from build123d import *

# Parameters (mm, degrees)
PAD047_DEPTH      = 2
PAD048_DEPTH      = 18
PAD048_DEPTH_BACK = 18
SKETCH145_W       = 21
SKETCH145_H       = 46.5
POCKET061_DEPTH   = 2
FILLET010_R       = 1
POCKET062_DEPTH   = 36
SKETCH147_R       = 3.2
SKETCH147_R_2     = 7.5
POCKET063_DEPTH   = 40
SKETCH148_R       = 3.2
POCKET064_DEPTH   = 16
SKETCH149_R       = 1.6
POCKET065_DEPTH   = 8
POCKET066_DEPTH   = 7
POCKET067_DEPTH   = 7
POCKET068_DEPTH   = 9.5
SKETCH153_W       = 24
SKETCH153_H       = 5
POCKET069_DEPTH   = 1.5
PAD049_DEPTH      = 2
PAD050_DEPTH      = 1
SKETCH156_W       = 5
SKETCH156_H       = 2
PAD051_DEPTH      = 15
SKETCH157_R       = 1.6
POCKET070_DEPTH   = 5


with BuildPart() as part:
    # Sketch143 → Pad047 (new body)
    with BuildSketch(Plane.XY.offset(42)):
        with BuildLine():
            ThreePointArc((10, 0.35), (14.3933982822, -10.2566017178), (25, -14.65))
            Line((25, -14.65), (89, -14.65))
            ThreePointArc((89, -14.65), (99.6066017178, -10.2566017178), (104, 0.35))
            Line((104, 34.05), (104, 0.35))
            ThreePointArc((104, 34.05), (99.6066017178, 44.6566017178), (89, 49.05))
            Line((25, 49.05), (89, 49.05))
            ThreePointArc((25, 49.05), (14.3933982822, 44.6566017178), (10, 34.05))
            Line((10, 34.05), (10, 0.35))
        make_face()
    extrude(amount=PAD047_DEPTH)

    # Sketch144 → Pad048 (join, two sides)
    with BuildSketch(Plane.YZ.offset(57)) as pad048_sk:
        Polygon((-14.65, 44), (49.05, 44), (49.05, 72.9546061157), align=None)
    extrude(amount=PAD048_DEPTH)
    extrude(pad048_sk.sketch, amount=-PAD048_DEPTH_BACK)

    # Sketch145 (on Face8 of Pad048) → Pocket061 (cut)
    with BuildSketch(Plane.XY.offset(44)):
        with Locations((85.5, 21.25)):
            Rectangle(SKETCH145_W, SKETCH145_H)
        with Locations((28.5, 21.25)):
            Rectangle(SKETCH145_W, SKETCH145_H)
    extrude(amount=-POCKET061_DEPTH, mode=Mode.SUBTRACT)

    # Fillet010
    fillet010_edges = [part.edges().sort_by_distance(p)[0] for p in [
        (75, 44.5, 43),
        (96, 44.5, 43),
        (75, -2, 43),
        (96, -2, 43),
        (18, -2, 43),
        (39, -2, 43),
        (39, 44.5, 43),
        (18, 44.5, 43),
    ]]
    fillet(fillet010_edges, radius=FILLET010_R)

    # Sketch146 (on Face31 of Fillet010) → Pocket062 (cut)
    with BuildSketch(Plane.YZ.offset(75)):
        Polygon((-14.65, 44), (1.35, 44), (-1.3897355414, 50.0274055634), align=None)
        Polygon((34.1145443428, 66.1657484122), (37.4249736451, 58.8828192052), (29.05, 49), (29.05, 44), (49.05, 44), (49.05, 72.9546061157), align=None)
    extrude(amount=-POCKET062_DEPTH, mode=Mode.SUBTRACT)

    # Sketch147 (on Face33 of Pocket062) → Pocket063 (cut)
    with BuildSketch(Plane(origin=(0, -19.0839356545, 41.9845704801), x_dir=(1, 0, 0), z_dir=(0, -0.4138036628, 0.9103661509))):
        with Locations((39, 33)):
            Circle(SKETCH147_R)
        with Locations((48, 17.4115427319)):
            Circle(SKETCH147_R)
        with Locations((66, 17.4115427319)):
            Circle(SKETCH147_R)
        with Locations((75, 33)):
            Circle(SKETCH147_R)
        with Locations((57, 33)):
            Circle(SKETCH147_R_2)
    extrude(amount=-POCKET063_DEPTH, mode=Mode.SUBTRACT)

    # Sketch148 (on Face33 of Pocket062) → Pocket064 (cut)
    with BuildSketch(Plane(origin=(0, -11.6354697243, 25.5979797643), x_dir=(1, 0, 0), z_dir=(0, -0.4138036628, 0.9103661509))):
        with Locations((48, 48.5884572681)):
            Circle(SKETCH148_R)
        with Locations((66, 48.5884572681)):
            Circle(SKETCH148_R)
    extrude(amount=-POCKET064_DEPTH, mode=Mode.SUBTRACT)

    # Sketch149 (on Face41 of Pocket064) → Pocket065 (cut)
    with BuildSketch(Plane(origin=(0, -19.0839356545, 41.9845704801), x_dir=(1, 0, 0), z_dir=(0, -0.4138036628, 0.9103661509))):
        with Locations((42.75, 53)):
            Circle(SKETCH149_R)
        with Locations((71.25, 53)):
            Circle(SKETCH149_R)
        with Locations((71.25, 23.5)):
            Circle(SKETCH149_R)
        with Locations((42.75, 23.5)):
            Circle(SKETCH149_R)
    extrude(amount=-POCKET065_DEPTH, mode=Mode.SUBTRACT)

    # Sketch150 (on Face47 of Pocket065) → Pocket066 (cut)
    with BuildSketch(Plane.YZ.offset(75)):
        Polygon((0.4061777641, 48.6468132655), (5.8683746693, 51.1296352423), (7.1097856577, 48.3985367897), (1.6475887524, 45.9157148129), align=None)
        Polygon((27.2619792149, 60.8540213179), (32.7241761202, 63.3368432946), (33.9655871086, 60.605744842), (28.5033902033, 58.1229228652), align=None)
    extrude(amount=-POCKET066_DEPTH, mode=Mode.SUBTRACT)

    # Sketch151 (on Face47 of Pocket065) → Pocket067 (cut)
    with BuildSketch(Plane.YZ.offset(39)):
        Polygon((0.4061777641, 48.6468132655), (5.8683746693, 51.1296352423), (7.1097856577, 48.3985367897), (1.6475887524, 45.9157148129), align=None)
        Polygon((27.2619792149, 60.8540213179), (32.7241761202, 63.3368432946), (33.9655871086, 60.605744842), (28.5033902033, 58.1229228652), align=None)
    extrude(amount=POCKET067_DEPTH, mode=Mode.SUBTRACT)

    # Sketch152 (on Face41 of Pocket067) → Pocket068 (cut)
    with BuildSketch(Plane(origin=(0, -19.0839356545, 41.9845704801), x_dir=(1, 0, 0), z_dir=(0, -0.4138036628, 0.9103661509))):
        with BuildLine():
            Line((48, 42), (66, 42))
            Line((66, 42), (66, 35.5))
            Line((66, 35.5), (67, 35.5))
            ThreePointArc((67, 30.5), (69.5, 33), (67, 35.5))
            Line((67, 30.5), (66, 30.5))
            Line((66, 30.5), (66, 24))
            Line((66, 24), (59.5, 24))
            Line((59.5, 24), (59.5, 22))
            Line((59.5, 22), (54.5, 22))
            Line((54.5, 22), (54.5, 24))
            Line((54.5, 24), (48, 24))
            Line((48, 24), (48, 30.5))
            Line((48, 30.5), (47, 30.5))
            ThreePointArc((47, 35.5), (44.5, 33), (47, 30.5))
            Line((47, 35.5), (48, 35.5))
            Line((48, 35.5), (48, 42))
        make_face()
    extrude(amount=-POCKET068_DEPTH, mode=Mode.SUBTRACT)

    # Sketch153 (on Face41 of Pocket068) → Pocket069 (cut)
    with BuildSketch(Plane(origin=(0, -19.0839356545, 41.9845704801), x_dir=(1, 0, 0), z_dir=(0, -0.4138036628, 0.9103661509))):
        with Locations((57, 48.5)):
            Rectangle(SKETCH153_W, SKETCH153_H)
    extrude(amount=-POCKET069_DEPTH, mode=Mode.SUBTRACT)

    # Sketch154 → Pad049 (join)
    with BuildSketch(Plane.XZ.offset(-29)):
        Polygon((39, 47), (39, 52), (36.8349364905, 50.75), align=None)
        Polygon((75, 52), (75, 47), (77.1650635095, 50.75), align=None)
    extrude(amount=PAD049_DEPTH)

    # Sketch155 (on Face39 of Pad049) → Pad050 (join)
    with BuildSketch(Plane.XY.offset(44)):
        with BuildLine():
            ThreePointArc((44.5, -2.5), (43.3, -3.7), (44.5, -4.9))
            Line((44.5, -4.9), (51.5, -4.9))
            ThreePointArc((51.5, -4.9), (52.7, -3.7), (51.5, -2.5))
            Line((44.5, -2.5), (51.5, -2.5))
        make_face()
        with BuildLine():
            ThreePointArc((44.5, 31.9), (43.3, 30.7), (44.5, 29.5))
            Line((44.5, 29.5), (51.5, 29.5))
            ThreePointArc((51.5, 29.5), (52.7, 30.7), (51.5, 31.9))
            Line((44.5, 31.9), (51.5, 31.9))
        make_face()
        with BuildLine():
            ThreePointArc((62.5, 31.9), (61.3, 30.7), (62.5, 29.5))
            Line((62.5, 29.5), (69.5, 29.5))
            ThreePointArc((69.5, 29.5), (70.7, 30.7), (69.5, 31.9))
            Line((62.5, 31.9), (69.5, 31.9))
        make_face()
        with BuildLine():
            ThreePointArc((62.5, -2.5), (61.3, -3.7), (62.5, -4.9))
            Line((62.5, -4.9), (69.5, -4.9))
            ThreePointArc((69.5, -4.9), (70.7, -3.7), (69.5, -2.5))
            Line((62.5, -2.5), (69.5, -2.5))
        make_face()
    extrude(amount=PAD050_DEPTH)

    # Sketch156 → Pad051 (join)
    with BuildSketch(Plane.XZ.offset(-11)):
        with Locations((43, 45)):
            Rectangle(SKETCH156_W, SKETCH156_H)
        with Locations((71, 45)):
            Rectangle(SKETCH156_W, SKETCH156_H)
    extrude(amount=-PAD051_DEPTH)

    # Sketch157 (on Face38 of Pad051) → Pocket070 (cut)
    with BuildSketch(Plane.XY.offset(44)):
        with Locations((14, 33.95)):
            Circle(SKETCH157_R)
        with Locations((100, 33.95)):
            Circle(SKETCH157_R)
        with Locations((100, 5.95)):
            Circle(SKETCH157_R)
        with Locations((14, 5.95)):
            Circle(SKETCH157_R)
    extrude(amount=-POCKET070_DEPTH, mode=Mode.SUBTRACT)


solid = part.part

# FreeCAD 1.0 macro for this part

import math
import FreeCAD as App
import Part
import Sketcher
from FreeCAD import Vector
Q = App.Units.Quantity


def edges_at(feature, points):
    """Names of the edges that pass closest to the given points."""
    edges = feature.Shape.Edges
    near = lambda p: min(range(len(edges)), key=lambda i: edges[i].distToShape(Part.Vertex(*p))[0])
    return sorted({f"Edge{near(p) + 1}" for p in points})


def add_polygon(sketch, points):
    """Adds a closed chain of lines whose ends are joined by coincident constraints."""
    first, n = sketch.GeometryCount, len(points)
    for a, b in zip(points, points[1:] + points[:1]):
        sketch.addGeometry(Part.LineSegment(App.Vector(*a, 0), App.Vector(*b, 0)), False)
    for i in range(n):
        sketch.addConstraint(Sketcher.Constraint("Coincident", first + i, 2, first + (i + 1) % n, 1))

doc = App.newDocument("Part")
body = doc.addObject("PartDesign::Body", "Body")

# Sketch on XY plane
sketch1 = body.newObject("Sketcher::SketchObject", "Sketch")
sketch1.AttachmentSupport = (doc.getObject("XY_Plane"), [""])
sketch1.MapMode = "FlatFace"
sketch1.AttachmentOffset = App.Placement(Vector(0, 0, 42), App.Rotation())
sketch1.addGeometry([
    Part.ArcOfCircle(Part.Circle(Vector(25, 0, 0), Vector(0, 0, 1), 15), math.radians(180), math.radians(270)),  # 0
    Part.LineSegment(Vector(25, -15, 0), Vector(89, -15, 0)),  # 1
    Part.ArcOfCircle(Part.Circle(Vector(89, 0, 0), Vector(0, 0, 1), 15), math.radians(-90), math.radians(0)),  # 2
    Part.LineSegment(Vector(104, 0, 0), Vector(104, 34, 0)),  # 3
    Part.ArcOfCircle(Part.Circle(Vector(89, 34, 0), Vector(0, 0, 1), 15), math.radians(0), math.radians(90)),  # 4
    Part.LineSegment(Vector(89, 49, 0), Vector(25, 49, 0)),  # 5
    Part.ArcOfCircle(Part.Circle(Vector(25, 34, 0), Vector(0, 0, 1), 15), math.radians(90), math.radians(180)),  # 6
    Part.LineSegment(Vector(10, 34, 0), Vector(10, 0, 0)),  # 7
], False)
sketch1.addConstraint([
    Sketcher.Constraint("Tangent", 0, 2, 1, 1),
    Sketcher.Constraint("Tangent", 1, 2, 2, 1),
    Sketcher.Constraint("Tangent", 2, 2, 3, 1),
    Sketcher.Constraint("Tangent", 3, 2, 4, 1),
    Sketcher.Constraint("Tangent", 4, 2, 5, 1),
    Sketcher.Constraint("Tangent", 5, 2, 6, 1),
    Sketcher.Constraint("Tangent", 6, 2, 7, 1),
    Sketcher.Constraint("Tangent", 7, 2, 0, 1),
    Sketcher.Constraint("Horizontal", 1),
    Sketcher.Constraint("Vertical", 3),
    Sketcher.Constraint("Horizontal", 5),
    Sketcher.Constraint("Vertical", 7),
    Sketcher.Constraint("Equal", 0, 2),
    Sketcher.Constraint("Equal", 2, 4),
    Sketcher.Constraint("Equal", 4, 6),
    Sketcher.Constraint("Radius", 0, 15.0),
    Sketcher.Constraint("DistanceX", 1, 1, 1, 2, 64.0),
    Sketcher.Constraint("DistanceY", 3, 1, 3, 2, 33.7),
    Sketcher.Constraint("DistanceX", -1, 1, 0, 3, 25.0),
    Sketcher.Constraint("DistanceY", -1, 1, 0, 3, 0.35),
])
pad1 = body.newObject("PartDesign::Pad", "Pad")
pad1.Profile = sketch1
pad1.Length = 2

# Sketch on YZ plane
sketch2 = body.newObject("Sketcher::SketchObject", "Sketch001")
sketch2.AttachmentSupport = (doc.getObject("YZ_Plane"), [""])
sketch2.MapMode = "FlatFace"
sketch2.AttachmentOffset = App.Placement(Vector(0, 0, 57), App.Rotation())
add_polygon(sketch2, [(-15, 44), (49, 44), (49, 73)])  # lines 0-2
sketch2.addConstraint([
    Sketcher.Constraint("Horizontal", 0),
    Sketcher.Constraint("Vertical", 1),
    Sketcher.Constraint("DistanceX", 0, 1, 0, 2, 63.7),
    Sketcher.Constraint("DistanceY", -1, 1, 0, 2, 44.0),
    Sketcher.Constraint("DistanceX", -1, 1, 0, 2, 49.05),
    Sketcher.Constraint("DistanceY", 1, 1, 1, 2, 28.954606),
])
pad2 = body.newObject("PartDesign::Pad", "Pad001")
pad2.Profile = sketch2
pad2.Type = "TwoLengths"
pad2.Length = 18
pad2.Length2 = 18

# Sketch on XY plane
sketch3 = body.newObject("Sketcher::SketchObject", "Sketch002")
sketch3.AttachmentSupport = (doc.getObject("XY_Plane"), [""])
sketch3.MapMode = "FlatFace"
sketch3.AttachmentOffset = App.Placement(Vector(0, 0, 44), App.Rotation())
add_polygon(sketch3, [(75, 44), (75, -2), (96, -2), (96, 44)])  # lines 0-3
add_polygon(sketch3, [(18, 44), (18, -2), (39, -2), (39, 44)])  # lines 4-7
sketch3.addConstraint([
    Sketcher.Constraint("Vertical", 0),
    Sketcher.Constraint("Horizontal", 1),
    Sketcher.Constraint("Vertical", 2),
    Sketcher.Constraint("Horizontal", 3),
    Sketcher.Constraint("Vertical", 4),
    Sketcher.Constraint("Horizontal", 5),
    Sketcher.Constraint("Vertical", 6),
    Sketcher.Constraint("Horizontal", 7),
    Sketcher.Constraint("Horizontal", 1, 2, 4, 2),
    Sketcher.Constraint("Horizontal", 3, 2, 6, 2),
    Sketcher.Constraint("Equal", 3, 5),
    Sketcher.Constraint("DistanceX", 1, 1, 1, 2, 21.0),
    Sketcher.Constraint("DistanceY", 0, 2, 0, 1, 46.5),
    Sketcher.Constraint("DistanceX", -1, 1, 0, 2, 75.0),
    Sketcher.Constraint("DistanceY", 0, 2, -1, 1, 2.0),
    Sketcher.Constraint("DistanceX", -1, 1, 4, 2, 18.0),
])
pocket1 = body.newObject("PartDesign::Pocket", "Pocket")
pocket1.Profile = sketch3
pocket1.Length = 2
doc.recompute()

fillet = body.newObject("PartDesign::Fillet", "Fillet")
fillet.Base = (pocket1, edges_at(pocket1, [
    (75, 44.5, 43),
    (96, 44.5, 43),
    (75, -2, 43),
    (96, -2, 43),
    (18, -2, 43),
    (39, -2, 43),
    (39, 44.5, 43),
    (18, 44.5, 43),
]))
fillet.Radius = 1

# Sketch on YZ plane
sketch4 = body.newObject("Sketcher::SketchObject", "Sketch003")
sketch4.AttachmentSupport = (doc.getObject("YZ_Plane"), [""])
sketch4.MapMode = "FlatFace"
sketch4.AttachmentOffset = App.Placement(Vector(0, 0, 75), App.Rotation())
add_polygon(sketch4, [(-15, 44), (1, 44), (-1, 50)])  # lines 0-2
add_polygon(sketch4, [(34, 66), (37, 59), (29, 49), (29, 44), (49, 44), (49, 73)])  # lines 3-8
sketch4.addConstraint([
    Sketcher.Constraint("Horizontal", 0),
    Sketcher.Constraint("Vertical", 5),
    Sketcher.Constraint("Horizontal", 6),
    Sketcher.Constraint("Vertical", 7),
    Sketcher.Constraint("Perpendicular", 1, 2),
    Sketcher.Constraint("Perpendicular", 2, 3),
    Sketcher.Constraint("Perpendicular", 3, 8),
    Sketcher.Constraint("Horizontal", 2, 2, 5, 2),
    Sketcher.Constraint("DistanceX", 0, 1, 0, 2, 16.0),
    Sketcher.Constraint("DistanceX", 6, 1, 6, 2, 20.0),
    Sketcher.Constraint("DistanceY", 5, 2, 5, 1, 5.0),
    Sketcher.Constraint("Distance", 3, 8.0),
    Sketcher.Constraint("DistanceY", -1, 1, 0, 2, 44.0),
    Sketcher.Constraint("DistanceX", 0, 2, 4, 2, 27.7),
    Sketcher.Constraint("DistanceX", -1, 1, 0, 2, 1.35),
    Sketcher.Constraint("DistanceY", 1, 2, 7, 2, 22.927201),
    Sketcher.Constraint("Distance", 1, 6.620859),
    Sketcher.Constraint("Distance", 4, 12.954161),
])
pocket2 = body.newObject("PartDesign::Pocket", "Pocket001")
pocket2.Profile = sketch4
pocket2.Length = 36

# Sketch on an angled plane
sketch5 = body.newObject("Sketcher::SketchObject", "Sketch004")
sketch5.Placement = App.Placement(Vector(0, -19.083936, 41.98457), App.Rotation(Vector(1, 0, 0), Vector(0, 0.910366151, 0.413803663), Vector(0, -0.413803663, 0.910366151), "ZXY"))
sketch5.addGeometry([
    Part.Circle(Vector(39, 33, 0), Vector(0, 0, 1), 3.2),  # 0
    Part.Circle(Vector(48, 17.4, 0), Vector(0, 0, 1), 3.2),  # 1
    Part.Circle(Vector(66, 17.4, 0), Vector(0, 0, 1), 3.2),  # 2
    Part.Circle(Vector(75, 33, 0), Vector(0, 0, 1), 3.2),  # 3
    Part.Circle(Vector(57, 33, 0), Vector(0, 0, 1), 7.5),  # 4
], False)
sketch5.addConstraint([
    Sketcher.Constraint("Equal", 0, 1),
    Sketcher.Constraint("Equal", 1, 2),
    Sketcher.Constraint("Equal", 2, 3),
    Sketcher.Constraint("Horizontal", 1, 3, 2, 3),
    Sketcher.Constraint("Horizontal", 0, 3, 3, 3),
    Sketcher.Constraint("Horizontal", 3, 3, 4, 3),
    Sketcher.Constraint("Diameter", 4, 15.0),
    Sketcher.Constraint("Diameter", 0, 6.4),
    Sketcher.Constraint("DistanceX", -1, 1, 0, 3, 39.0),
    Sketcher.Constraint("DistanceY", -1, 1, 0, 3, 33.0),
    Sketcher.Constraint("DistanceX", -1, 1, 1, 3, 48.0),
    Sketcher.Constraint("DistanceX", -1, 1, 2, 3, 66.0),
    Sketcher.Constraint("DistanceX", -1, 1, 3, 3, 75.0),
    Sketcher.Constraint("DistanceX", -1, 1, 4, 3, 57.0),
    Sketcher.Constraint("DistanceY", -1, 1, 1, 3, 17.411543),
])
pocket3 = body.newObject("PartDesign::Pocket", "Pocket002")
pocket3.Profile = sketch5
pocket3.Length = 40

# Sketch on an angled plane
sketch6 = body.newObject("Sketcher::SketchObject", "Sketch005")
sketch6.Placement = App.Placement(Vector(0, -11.63547, 25.59798), App.Rotation(Vector(1, 0, 0), Vector(0, 0.910366151, 0.413803663), Vector(0, -0.413803663, 0.910366151), "ZXY"))
sketch6.addGeometry([
    Part.Circle(Vector(48, 48.6, 0), Vector(0, 0, 1), 3.2),
    Part.Circle(Vector(66, 48.6, 0), Vector(0, 0, 1), 3.2),
], False)
sketch6.addConstraint([
    Sketcher.Constraint("Equal", 0, 1),
    Sketcher.Constraint("Horizontal", 0, 3, 1, 3),
    Sketcher.Constraint("Diameter", 0, 6.4),
    Sketcher.Constraint("DistanceX", -1, 1, 0, 3, 48.0),
    Sketcher.Constraint("DistanceX", -1, 1, 1, 3, 66.0),
    Sketcher.Constraint("DistanceY", -1, 1, 0, 3, 48.588457),
])
pocket4 = body.newObject("PartDesign::Pocket", "Pocket003")
pocket4.Profile = sketch6
pocket4.Length = 16

# Sketch on an angled plane
sketch7 = body.newObject("Sketcher::SketchObject", "Sketch006")
sketch7.Placement = App.Placement(Vector(0, -19.083936, 41.98457), App.Rotation(Vector(1, 0, 0), Vector(0, 0.910366151, 0.413803663), Vector(0, -0.413803663, 0.910366151), "ZXY"))
sketch7.addGeometry([
    Part.Circle(Vector(42.8, 53, 0), Vector(0, 0, 1), 1.6),
    Part.Circle(Vector(71.2, 53, 0), Vector(0, 0, 1), 1.6),
    Part.Circle(Vector(71.2, 23.5, 0), Vector(0, 0, 1), 1.6),
    Part.Circle(Vector(42.8, 23.5, 0), Vector(0, 0, 1), 1.6),
], False)
sketch7.addConstraint([
    Sketcher.Constraint("Equal", 0, 1),
    Sketcher.Constraint("Equal", 1, 2),
    Sketcher.Constraint("Equal", 2, 3),
    Sketcher.Constraint("Horizontal", 0, 3, 1, 3),
    Sketcher.Constraint("Horizontal", 2, 3, 3, 3),
    Sketcher.Constraint("Vertical", 1, 3, 2, 3),
    Sketcher.Constraint("Vertical", 0, 3, 3, 3),
    Sketcher.Constraint("Diameter", 0, 3.2),
    Sketcher.Constraint("DistanceY", -1, 1, 0, 3, 53.0),
    Sketcher.Constraint("DistanceY", -1, 1, 2, 3, 23.5),
    Sketcher.Constraint("DistanceX", 0, 3, 1, 3, 28.5),
    Sketcher.Constraint("DistanceX", -1, 1, 0, 3, 42.75),
])
pocket5 = body.newObject("PartDesign::Pocket", "Pocket004")
pocket5.Profile = sketch7
pocket5.Length = 8

# Sketch on YZ plane
sketch8 = body.newObject("Sketcher::SketchObject", "Sketch007")
sketch8.AttachmentSupport = (doc.getObject("YZ_Plane"), [""])
sketch8.MapMode = "FlatFace"
sketch8.AttachmentOffset = App.Placement(Vector(0, 0, 75), App.Rotation())
add_polygon(sketch8, [(5.9, 51.1), (0.4, 48.6), (1.6, 45.9), (7.1, 48.4)])  # lines 0-3
add_polygon(sketch8, [(32.7, 63.3), (27.3, 60.9), (28.5, 58.1), (34, 60.6)])  # lines 4-7
sketch8.addConstraint([
    Sketcher.Constraint("Perpendicular", 0, 1),
    Sketcher.Constraint("Perpendicular", 1, 2),
    Sketcher.Constraint("Perpendicular", 2, 3),
    Sketcher.Constraint("Perpendicular", 3, 4),
    Sketcher.Constraint("Perpendicular", 4, 5),
    Sketcher.Constraint("Perpendicular", 5, 6),
    Sketcher.Constraint("Perpendicular", 6, 7),
    Sketcher.Constraint("Equal", 2, 4),
    Sketcher.Constraint("Equal", 3, 5),
    Sketcher.Constraint("Distance", 0, 6.0),
    Sketcher.Constraint("Distance", 1, 3.0),
    Sketcher.Constraint("DistanceX", 1, 2, 6, 2, 32.317998),
    Sketcher.Constraint("DistanceY", 1, 2, 0, 2, 2.731098),
    Sketcher.Constraint("DistanceX", -1, 1, 1, 2, 1.647589),
    Sketcher.Constraint("DistanceY", -1, 1, 4, 2, 60.854021),
    Sketcher.Constraint("DistanceY", 0, 2, 4, 2, 12.207208),
])
pocket6 = body.newObject("PartDesign::Pocket", "Pocket005")
pocket6.Profile = sketch8
pocket6.Length = 7

# Sketch on YZ plane
sketch9 = body.newObject("Sketcher::SketchObject", "Sketch008")
sketch9.AttachmentSupport = (doc.getObject("YZ_Plane"), [""])
sketch9.MapMode = "FlatFace"
sketch9.AttachmentOffset = App.Placement(Vector(0, 0, 39), App.Rotation())
add_polygon(sketch9, [(5.9, 51.1), (0.4, 48.6), (1.6, 45.9), (7.1, 48.4)])  # lines 0-3
add_polygon(sketch9, [(32.7, 63.3), (27.3, 60.9), (28.5, 58.1), (34, 60.6)])  # lines 4-7
sketch9.addConstraint([
    Sketcher.Constraint("Perpendicular", 0, 1),
    Sketcher.Constraint("Perpendicular", 1, 2),
    Sketcher.Constraint("Perpendicular", 2, 3),
    Sketcher.Constraint("Perpendicular", 3, 4),
    Sketcher.Constraint("Perpendicular", 4, 5),
    Sketcher.Constraint("Perpendicular", 5, 6),
    Sketcher.Constraint("Perpendicular", 6, 7),
    Sketcher.Constraint("Equal", 2, 4),
    Sketcher.Constraint("Equal", 3, 5),
    Sketcher.Constraint("Distance", 0, 6.0),
    Sketcher.Constraint("Distance", 1, 3.0),
    Sketcher.Constraint("DistanceX", 1, 2, 6, 2, 32.317998),
    Sketcher.Constraint("DistanceY", 1, 2, 0, 2, 2.731098),
    Sketcher.Constraint("DistanceX", -1, 1, 1, 2, 1.647589),
    Sketcher.Constraint("DistanceY", -1, 1, 4, 2, 60.854021),
    Sketcher.Constraint("DistanceY", 0, 2, 4, 2, 12.207208),
])
pocket7 = body.newObject("PartDesign::Pocket", "Pocket006")
pocket7.Profile = sketch9
pocket7.Length = 7
pocket7.Reversed = True

# Sketch on an angled plane
sketch10 = body.newObject("Sketcher::SketchObject", "Sketch009")
sketch10.Placement = App.Placement(Vector(0, -19.083936, 41.98457), App.Rotation(Vector(1, 0, 0), Vector(0, 0.910366151, 0.413803663), Vector(0, -0.413803663, 0.910366151), "ZXY"))
sketch10.addGeometry([
    Part.LineSegment(Vector(66, 42, 0), Vector(48, 42, 0)),  # 0
    Part.LineSegment(Vector(48, 42, 0), Vector(48, 35.5, 0)),  # 1
    Part.LineSegment(Vector(48, 35.5, 0), Vector(47, 35.5, 0)),  # 2
    Part.ArcOfCircle(Part.Circle(Vector(47, 33, 0), Vector(0, 0, 1), 2.5), math.radians(90), math.radians(270)),  # 3
    Part.LineSegment(Vector(47, 30.5, 0), Vector(48, 30.5, 0)),  # 4
    Part.LineSegment(Vector(48, 30.5, 0), Vector(48, 24, 0)),  # 5
    Part.LineSegment(Vector(48, 24, 0), Vector(54.5, 24, 0)),  # 6
    Part.LineSegment(Vector(54.5, 24, 0), Vector(54.5, 22, 0)),  # 7
    Part.LineSegment(Vector(54.5, 22, 0), Vector(59.5, 22, 0)),  # 8
    Part.LineSegment(Vector(59.5, 22, 0), Vector(59.5, 24, 0)),  # 9
    Part.LineSegment(Vector(59.5, 24, 0), Vector(66, 24, 0)),  # 10
    Part.LineSegment(Vector(66, 24, 0), Vector(66, 30.5, 0)),  # 11
    Part.LineSegment(Vector(66, 30.5, 0), Vector(67, 30.5, 0)),  # 12
    Part.ArcOfCircle(Part.Circle(Vector(67, 33, 0), Vector(0, 0, 1), 2.5), math.radians(-90), math.radians(90)),  # 13
    Part.LineSegment(Vector(67, 35.5, 0), Vector(66, 35.5, 0)),  # 14
    Part.LineSegment(Vector(66, 35.5, 0), Vector(66, 42, 0)),  # 15
], False)
sketch10.addConstraint([
    Sketcher.Constraint("Coincident", 0, 2, 1, 1),
    Sketcher.Constraint("Coincident", 1, 2, 2, 1),
    Sketcher.Constraint("Tangent", 2, 2, 3, 1),
    Sketcher.Constraint("Tangent", 3, 2, 4, 1),
    Sketcher.Constraint("Coincident", 4, 2, 5, 1),
    Sketcher.Constraint("Coincident", 5, 2, 6, 1),
    Sketcher.Constraint("Coincident", 6, 2, 7, 1),
    Sketcher.Constraint("Coincident", 7, 2, 8, 1),
    Sketcher.Constraint("Coincident", 8, 2, 9, 1),
    Sketcher.Constraint("Coincident", 9, 2, 10, 1),
    Sketcher.Constraint("Coincident", 10, 2, 11, 1),
    Sketcher.Constraint("Coincident", 11, 2, 12, 1),
    Sketcher.Constraint("Tangent", 12, 2, 13, 1),
    Sketcher.Constraint("Tangent", 13, 2, 14, 1),
    Sketcher.Constraint("Coincident", 14, 2, 15, 1),
    Sketcher.Constraint("Coincident", 15, 2, 0, 1),
    Sketcher.Constraint("Horizontal", 0),
    Sketcher.Constraint("Vertical", 1),
    Sketcher.Constraint("Horizontal", 2),
    Sketcher.Constraint("Horizontal", 4),
    Sketcher.Constraint("Vertical", 5),
    Sketcher.Constraint("Horizontal", 6),
    Sketcher.Constraint("Vertical", 7),
    Sketcher.Constraint("Horizontal", 8),
    Sketcher.Constraint("Vertical", 9),
    Sketcher.Constraint("Horizontal", 10),
    Sketcher.Constraint("Vertical", 11),
    Sketcher.Constraint("Horizontal", 12),
    Sketcher.Constraint("Horizontal", 14),
    Sketcher.Constraint("Vertical", 15),
    Sketcher.Constraint("Equal", 3, 13),
    Sketcher.Constraint("Horizontal", 3, 3, 13, 3),
    Sketcher.Constraint("Horizontal", 6, 2, 9, 2),
    Sketcher.Constraint("Vertical", 1, 2, 4, 2),
    Sketcher.Constraint("Vertical", 11, 2, 14, 2),
    Sketcher.Constraint("Equal", 6, 10),
    Sketcher.Constraint("Equal", 4, 12),
    Sketcher.Constraint("Equal", 10, 1),
    Sketcher.Constraint("Equal", 1, 5),
    Sketcher.Constraint("Radius", 3, 2.5),
    Sketcher.Constraint("DistanceX", 0, 2, 0, 1, 18.0),
    Sketcher.Constraint("DistanceX", 2, 2, 2, 1, 1.0),
    Sketcher.Constraint("DistanceX", 8, 1, 8, 2, 5.0),
    Sketcher.Constraint("DistanceY", 7, 2, 7, 1, 2.0),
    Sketcher.Constraint("DistanceX", -1, 1, 3, 3, 47.0),
    Sketcher.Constraint("DistanceY", -1, 1, 3, 3, 33.0),
])
pocket8 = body.newObject("PartDesign::Pocket", "Pocket007")
pocket8.Profile = sketch10
pocket8.Length = 9.5

# Sketch on an angled plane
sketch11 = body.newObject("Sketcher::SketchObject", "Sketch010")
sketch11.Placement = App.Placement(Vector(0, -19.083936, 41.98457), App.Rotation(Vector(1, 0, 0), Vector(0, 0.910366151, 0.413803663), Vector(0, -0.413803663, 0.910366151), "ZXY"))
add_polygon(sketch11, [(45, 51), (45, 46), (69, 46), (69, 51)])  # lines 0-3
sketch11.addConstraint([
    Sketcher.Constraint("Vertical", 0),
    Sketcher.Constraint("Horizontal", 1),
    Sketcher.Constraint("Vertical", 2),
    Sketcher.Constraint("Horizontal", 3),
    Sketcher.Constraint("DistanceX", 1, 1, 1, 2, 24.0),
    Sketcher.Constraint("DistanceY", 0, 2, 0, 1, 5.0),
    Sketcher.Constraint("DistanceX", -1, 1, 0, 2, 45.0),
    Sketcher.Constraint("DistanceY", -1, 1, 0, 2, 46.0),
])
pocket9 = body.newObject("PartDesign::Pocket", "Pocket008")
pocket9.Profile = sketch11
pocket9.Length = 1.5

# Sketch on XZ plane
sketch12 = body.newObject("Sketcher::SketchObject", "Sketch011")
sketch12.AttachmentSupport = (doc.getObject("XZ_Plane"), [""])
sketch12.MapMode = "FlatFace"
sketch12.AttachmentOffset = App.Placement(Vector(0, 0, -29), App.Rotation())
add_polygon(sketch12, [(39, 47), (39, 52), (36.8, 50.8)])  # lines 0-2
add_polygon(sketch12, [(75, 52), (75, 47), (77.2, 50.8)])  # lines 3-5
sketch12.addConstraint([
    Sketcher.Constraint("Vertical", 0),
    Sketcher.Constraint("Vertical", 3),
    Sketcher.Constraint("Perpendicular", 1, 2),
    Sketcher.Constraint("Perpendicular", 4, 5),
    Sketcher.Constraint("Horizontal", 2, 2, 3, 2),
    Sketcher.Constraint("Horizontal", 1, 2, 4, 2),
    Sketcher.Constraint("Horizontal", 0, 2, 5, 2),
    Sketcher.Constraint("DistanceY", 0, 1, 0, 2, 5.0),
    Sketcher.Constraint("Angle", 1, Q("-150 deg")),
    Sketcher.Constraint("DistanceX", -1, 1, 0, 2, 39.0),
    Sketcher.Constraint("DistanceY", -1, 1, 0, 2, 52.0),
    Sketcher.Constraint("DistanceX", -1, 1, 3, 2, 75.0),
])
pad3 = body.newObject("PartDesign::Pad", "Pad002")
pad3.Profile = sketch12
pad3.Length = 2

# Sketch on XY plane
sketch13 = body.newObject("Sketcher::SketchObject", "Sketch012")
sketch13.AttachmentSupport = (doc.getObject("XY_Plane"), [""])
sketch13.MapMode = "FlatFace"
sketch13.AttachmentOffset = App.Placement(Vector(0, 0, 44), App.Rotation())
sketch13.addGeometry([
    Part.ArcOfCircle(Part.Circle(Vector(44.5, -3.7, 0), Vector(0, 0, 1), 1.2), math.radians(90), math.radians(270)),  # 0
    Part.LineSegment(Vector(44.5, -4.9, 0), Vector(51.5, -4.9, 0)),  # 1
    Part.ArcOfCircle(Part.Circle(Vector(51.5, -3.7, 0), Vector(0, 0, 1), 1.2), math.radians(-90), math.radians(90)),  # 2
    Part.LineSegment(Vector(51.5, -2.5, 0), Vector(44.5, -2.5, 0)),  # 3
    Part.ArcOfCircle(Part.Circle(Vector(44.5, 30.7, 0), Vector(0, 0, 1), 1.2), math.radians(90), math.radians(270)),  # 4
    Part.LineSegment(Vector(44.5, 29.5, 0), Vector(51.5, 29.5, 0)),  # 5
    Part.ArcOfCircle(Part.Circle(Vector(51.5, 30.7, 0), Vector(0, 0, 1), 1.2), math.radians(-90), math.radians(90)),  # 6
    Part.LineSegment(Vector(51.5, 31.9, 0), Vector(44.5, 31.9, 0)),  # 7
    Part.ArcOfCircle(Part.Circle(Vector(62.5, 30.7, 0), Vector(0, 0, 1), 1.2), math.radians(90), math.radians(270)),  # 8
    Part.LineSegment(Vector(62.5, 29.5, 0), Vector(69.5, 29.5, 0)),  # 9
    Part.ArcOfCircle(Part.Circle(Vector(69.5, 30.7, 0), Vector(0, 0, 1), 1.2), math.radians(-90), math.radians(90)),  # 10
    Part.LineSegment(Vector(69.5, 31.9, 0), Vector(62.5, 31.9, 0)),  # 11
    Part.ArcOfCircle(Part.Circle(Vector(62.5, -3.7, 0), Vector(0, 0, 1), 1.2), math.radians(90), math.radians(270)),  # 12
    Part.LineSegment(Vector(62.5, -4.9, 0), Vector(69.5, -4.9, 0)),  # 13
    Part.ArcOfCircle(Part.Circle(Vector(69.5, -3.7, 0), Vector(0, 0, 1), 1.2), math.radians(-90), math.radians(90)),  # 14
    Part.LineSegment(Vector(69.5, -2.5, 0), Vector(62.5, -2.5, 0)),  # 15
], False)
sketch13.addConstraint([
    Sketcher.Constraint("Tangent", 0, 2, 1, 1),
    Sketcher.Constraint("Tangent", 1, 2, 2, 1),
    Sketcher.Constraint("Tangent", 2, 2, 3, 1),
    Sketcher.Constraint("Tangent", 3, 2, 0, 1),
    Sketcher.Constraint("Tangent", 4, 2, 5, 1),
    Sketcher.Constraint("Tangent", 5, 2, 6, 1),
    Sketcher.Constraint("Tangent", 6, 2, 7, 1),
    Sketcher.Constraint("Tangent", 7, 2, 4, 1),
    Sketcher.Constraint("Tangent", 8, 2, 9, 1),
    Sketcher.Constraint("Tangent", 9, 2, 10, 1),
    Sketcher.Constraint("Tangent", 10, 2, 11, 1),
    Sketcher.Constraint("Tangent", 11, 2, 8, 1),
    Sketcher.Constraint("Tangent", 12, 2, 13, 1),
    Sketcher.Constraint("Tangent", 13, 2, 14, 1),
    Sketcher.Constraint("Tangent", 14, 2, 15, 1),
    Sketcher.Constraint("Tangent", 15, 2, 12, 1),
    Sketcher.Constraint("Horizontal", 1),
    Sketcher.Constraint("Horizontal", 3),
    Sketcher.Constraint("Horizontal", 5),
    Sketcher.Constraint("Horizontal", 7),
    Sketcher.Constraint("Horizontal", 9),
    Sketcher.Constraint("Horizontal", 11),
    Sketcher.Constraint("Horizontal", 13),
    Sketcher.Constraint("Horizontal", 15),
    Sketcher.Constraint("Equal", 2, 4),
    Sketcher.Constraint("Equal", 6, 8),
    Sketcher.Constraint("Equal", 10, 12),
    Sketcher.Constraint("Horizontal", 6, 3, 8, 3),
    Sketcher.Constraint("Horizontal", 2, 3, 12, 3),
    Sketcher.Constraint("Vertical", 0, 3, 4, 3),
    Sketcher.Constraint("Vertical", 2, 3, 6, 3),
    Sketcher.Constraint("Vertical", 8, 3, 12, 3),
    Sketcher.Constraint("Vertical", 10, 3, 14, 3),
    Sketcher.Constraint("Equal", 7, 9),
    Sketcher.Constraint("Radius", 0, 1.2),
    Sketcher.Constraint("DistanceX", 1, 1, 1, 2, 7.0),
    Sketcher.Constraint("DistanceX", 6, 3, 8, 3, 11.0),
    Sketcher.Constraint("DistanceY", 3, 2, 4, 2, 32.0),
    Sketcher.Constraint("DistanceX", -1, 1, 0, 3, 44.5),
    Sketcher.Constraint("DistanceY", 0, 3, -1, 1, 3.7),
])
pad4 = body.newObject("PartDesign::Pad", "Pad003")
pad4.Profile = sketch13
pad4.Length = 1

# Sketch on XZ plane
sketch14 = body.newObject("Sketcher::SketchObject", "Sketch013")
sketch14.AttachmentSupport = (doc.getObject("XZ_Plane"), [""])
sketch14.MapMode = "FlatFace"
sketch14.AttachmentOffset = App.Placement(Vector(0, 0, -11), App.Rotation())
add_polygon(sketch14, [(40.5, 46), (40.5, 44), (45.5, 44), (45.5, 46)])  # lines 0-3
add_polygon(sketch14, [(68.5, 46), (68.5, 44), (73.5, 44), (73.5, 46)])  # lines 4-7
sketch14.addConstraint([
    Sketcher.Constraint("Vertical", 0),
    Sketcher.Constraint("Horizontal", 1),
    Sketcher.Constraint("Vertical", 2),
    Sketcher.Constraint("Horizontal", 3),
    Sketcher.Constraint("Vertical", 4),
    Sketcher.Constraint("Horizontal", 5),
    Sketcher.Constraint("Vertical", 6),
    Sketcher.Constraint("Horizontal", 7),
    Sketcher.Constraint("Horizontal", 1, 2, 4, 2),
    Sketcher.Constraint("Horizontal", 3, 2, 6, 2),
    Sketcher.Constraint("Equal", 3, 5),
    Sketcher.Constraint("DistanceX", 1, 1, 1, 2, 5.0),
    Sketcher.Constraint("DistanceY", 0, 2, 0, 1, 2.0),
    Sketcher.Constraint("DistanceY", -1, 1, 0, 2, 44.0),
    Sketcher.Constraint("DistanceX", 1, 2, 4, 2, 23.0),
    Sketcher.Constraint("DistanceX", -1, 1, 0, 2, 40.5),
])
pad5 = body.newObject("PartDesign::Pad", "Pad004")
pad5.Profile = sketch14
pad5.Length = 15
pad5.Reversed = True

# Sketch on XY plane
sketch15 = body.newObject("Sketcher::SketchObject", "Sketch014")
sketch15.AttachmentSupport = (doc.getObject("XY_Plane"), [""])
sketch15.MapMode = "FlatFace"
sketch15.AttachmentOffset = App.Placement(Vector(0, 0, 44), App.Rotation())
sketch15.addGeometry([
    Part.Circle(Vector(14, 34, 0), Vector(0, 0, 1), 1.6),
    Part.Circle(Vector(100, 34, 0), Vector(0, 0, 1), 1.6),
    Part.Circle(Vector(100, 6, 0), Vector(0, 0, 1), 1.6),
    Part.Circle(Vector(14, 6, 0), Vector(0, 0, 1), 1.6),
], False)
sketch15.addConstraint([
    Sketcher.Constraint("Equal", 0, 1),
    Sketcher.Constraint("Equal", 1, 2),
    Sketcher.Constraint("Equal", 2, 3),
    Sketcher.Constraint("Horizontal", 0, 3, 1, 3),
    Sketcher.Constraint("Horizontal", 2, 3, 3, 3),
    Sketcher.Constraint("Vertical", 1, 3, 2, 3),
    Sketcher.Constraint("Vertical", 0, 3, 3, 3),
    Sketcher.Constraint("Diameter", 0, 3.2),
    Sketcher.Constraint("DistanceX", -1, 1, 0, 3, 14.0),
    Sketcher.Constraint("DistanceX", -1, 1, 1, 3, 100.0),
    Sketcher.Constraint("DistanceY", 2, 3, 1, 3, 28.0),
    Sketcher.Constraint("DistanceY", -1, 1, 0, 3, 33.95),
])
pocket10 = body.newObject("PartDesign::Pocket", "Pocket009")
pocket10.Profile = sketch15
pocket10.Length = 5

doc.recompute()
